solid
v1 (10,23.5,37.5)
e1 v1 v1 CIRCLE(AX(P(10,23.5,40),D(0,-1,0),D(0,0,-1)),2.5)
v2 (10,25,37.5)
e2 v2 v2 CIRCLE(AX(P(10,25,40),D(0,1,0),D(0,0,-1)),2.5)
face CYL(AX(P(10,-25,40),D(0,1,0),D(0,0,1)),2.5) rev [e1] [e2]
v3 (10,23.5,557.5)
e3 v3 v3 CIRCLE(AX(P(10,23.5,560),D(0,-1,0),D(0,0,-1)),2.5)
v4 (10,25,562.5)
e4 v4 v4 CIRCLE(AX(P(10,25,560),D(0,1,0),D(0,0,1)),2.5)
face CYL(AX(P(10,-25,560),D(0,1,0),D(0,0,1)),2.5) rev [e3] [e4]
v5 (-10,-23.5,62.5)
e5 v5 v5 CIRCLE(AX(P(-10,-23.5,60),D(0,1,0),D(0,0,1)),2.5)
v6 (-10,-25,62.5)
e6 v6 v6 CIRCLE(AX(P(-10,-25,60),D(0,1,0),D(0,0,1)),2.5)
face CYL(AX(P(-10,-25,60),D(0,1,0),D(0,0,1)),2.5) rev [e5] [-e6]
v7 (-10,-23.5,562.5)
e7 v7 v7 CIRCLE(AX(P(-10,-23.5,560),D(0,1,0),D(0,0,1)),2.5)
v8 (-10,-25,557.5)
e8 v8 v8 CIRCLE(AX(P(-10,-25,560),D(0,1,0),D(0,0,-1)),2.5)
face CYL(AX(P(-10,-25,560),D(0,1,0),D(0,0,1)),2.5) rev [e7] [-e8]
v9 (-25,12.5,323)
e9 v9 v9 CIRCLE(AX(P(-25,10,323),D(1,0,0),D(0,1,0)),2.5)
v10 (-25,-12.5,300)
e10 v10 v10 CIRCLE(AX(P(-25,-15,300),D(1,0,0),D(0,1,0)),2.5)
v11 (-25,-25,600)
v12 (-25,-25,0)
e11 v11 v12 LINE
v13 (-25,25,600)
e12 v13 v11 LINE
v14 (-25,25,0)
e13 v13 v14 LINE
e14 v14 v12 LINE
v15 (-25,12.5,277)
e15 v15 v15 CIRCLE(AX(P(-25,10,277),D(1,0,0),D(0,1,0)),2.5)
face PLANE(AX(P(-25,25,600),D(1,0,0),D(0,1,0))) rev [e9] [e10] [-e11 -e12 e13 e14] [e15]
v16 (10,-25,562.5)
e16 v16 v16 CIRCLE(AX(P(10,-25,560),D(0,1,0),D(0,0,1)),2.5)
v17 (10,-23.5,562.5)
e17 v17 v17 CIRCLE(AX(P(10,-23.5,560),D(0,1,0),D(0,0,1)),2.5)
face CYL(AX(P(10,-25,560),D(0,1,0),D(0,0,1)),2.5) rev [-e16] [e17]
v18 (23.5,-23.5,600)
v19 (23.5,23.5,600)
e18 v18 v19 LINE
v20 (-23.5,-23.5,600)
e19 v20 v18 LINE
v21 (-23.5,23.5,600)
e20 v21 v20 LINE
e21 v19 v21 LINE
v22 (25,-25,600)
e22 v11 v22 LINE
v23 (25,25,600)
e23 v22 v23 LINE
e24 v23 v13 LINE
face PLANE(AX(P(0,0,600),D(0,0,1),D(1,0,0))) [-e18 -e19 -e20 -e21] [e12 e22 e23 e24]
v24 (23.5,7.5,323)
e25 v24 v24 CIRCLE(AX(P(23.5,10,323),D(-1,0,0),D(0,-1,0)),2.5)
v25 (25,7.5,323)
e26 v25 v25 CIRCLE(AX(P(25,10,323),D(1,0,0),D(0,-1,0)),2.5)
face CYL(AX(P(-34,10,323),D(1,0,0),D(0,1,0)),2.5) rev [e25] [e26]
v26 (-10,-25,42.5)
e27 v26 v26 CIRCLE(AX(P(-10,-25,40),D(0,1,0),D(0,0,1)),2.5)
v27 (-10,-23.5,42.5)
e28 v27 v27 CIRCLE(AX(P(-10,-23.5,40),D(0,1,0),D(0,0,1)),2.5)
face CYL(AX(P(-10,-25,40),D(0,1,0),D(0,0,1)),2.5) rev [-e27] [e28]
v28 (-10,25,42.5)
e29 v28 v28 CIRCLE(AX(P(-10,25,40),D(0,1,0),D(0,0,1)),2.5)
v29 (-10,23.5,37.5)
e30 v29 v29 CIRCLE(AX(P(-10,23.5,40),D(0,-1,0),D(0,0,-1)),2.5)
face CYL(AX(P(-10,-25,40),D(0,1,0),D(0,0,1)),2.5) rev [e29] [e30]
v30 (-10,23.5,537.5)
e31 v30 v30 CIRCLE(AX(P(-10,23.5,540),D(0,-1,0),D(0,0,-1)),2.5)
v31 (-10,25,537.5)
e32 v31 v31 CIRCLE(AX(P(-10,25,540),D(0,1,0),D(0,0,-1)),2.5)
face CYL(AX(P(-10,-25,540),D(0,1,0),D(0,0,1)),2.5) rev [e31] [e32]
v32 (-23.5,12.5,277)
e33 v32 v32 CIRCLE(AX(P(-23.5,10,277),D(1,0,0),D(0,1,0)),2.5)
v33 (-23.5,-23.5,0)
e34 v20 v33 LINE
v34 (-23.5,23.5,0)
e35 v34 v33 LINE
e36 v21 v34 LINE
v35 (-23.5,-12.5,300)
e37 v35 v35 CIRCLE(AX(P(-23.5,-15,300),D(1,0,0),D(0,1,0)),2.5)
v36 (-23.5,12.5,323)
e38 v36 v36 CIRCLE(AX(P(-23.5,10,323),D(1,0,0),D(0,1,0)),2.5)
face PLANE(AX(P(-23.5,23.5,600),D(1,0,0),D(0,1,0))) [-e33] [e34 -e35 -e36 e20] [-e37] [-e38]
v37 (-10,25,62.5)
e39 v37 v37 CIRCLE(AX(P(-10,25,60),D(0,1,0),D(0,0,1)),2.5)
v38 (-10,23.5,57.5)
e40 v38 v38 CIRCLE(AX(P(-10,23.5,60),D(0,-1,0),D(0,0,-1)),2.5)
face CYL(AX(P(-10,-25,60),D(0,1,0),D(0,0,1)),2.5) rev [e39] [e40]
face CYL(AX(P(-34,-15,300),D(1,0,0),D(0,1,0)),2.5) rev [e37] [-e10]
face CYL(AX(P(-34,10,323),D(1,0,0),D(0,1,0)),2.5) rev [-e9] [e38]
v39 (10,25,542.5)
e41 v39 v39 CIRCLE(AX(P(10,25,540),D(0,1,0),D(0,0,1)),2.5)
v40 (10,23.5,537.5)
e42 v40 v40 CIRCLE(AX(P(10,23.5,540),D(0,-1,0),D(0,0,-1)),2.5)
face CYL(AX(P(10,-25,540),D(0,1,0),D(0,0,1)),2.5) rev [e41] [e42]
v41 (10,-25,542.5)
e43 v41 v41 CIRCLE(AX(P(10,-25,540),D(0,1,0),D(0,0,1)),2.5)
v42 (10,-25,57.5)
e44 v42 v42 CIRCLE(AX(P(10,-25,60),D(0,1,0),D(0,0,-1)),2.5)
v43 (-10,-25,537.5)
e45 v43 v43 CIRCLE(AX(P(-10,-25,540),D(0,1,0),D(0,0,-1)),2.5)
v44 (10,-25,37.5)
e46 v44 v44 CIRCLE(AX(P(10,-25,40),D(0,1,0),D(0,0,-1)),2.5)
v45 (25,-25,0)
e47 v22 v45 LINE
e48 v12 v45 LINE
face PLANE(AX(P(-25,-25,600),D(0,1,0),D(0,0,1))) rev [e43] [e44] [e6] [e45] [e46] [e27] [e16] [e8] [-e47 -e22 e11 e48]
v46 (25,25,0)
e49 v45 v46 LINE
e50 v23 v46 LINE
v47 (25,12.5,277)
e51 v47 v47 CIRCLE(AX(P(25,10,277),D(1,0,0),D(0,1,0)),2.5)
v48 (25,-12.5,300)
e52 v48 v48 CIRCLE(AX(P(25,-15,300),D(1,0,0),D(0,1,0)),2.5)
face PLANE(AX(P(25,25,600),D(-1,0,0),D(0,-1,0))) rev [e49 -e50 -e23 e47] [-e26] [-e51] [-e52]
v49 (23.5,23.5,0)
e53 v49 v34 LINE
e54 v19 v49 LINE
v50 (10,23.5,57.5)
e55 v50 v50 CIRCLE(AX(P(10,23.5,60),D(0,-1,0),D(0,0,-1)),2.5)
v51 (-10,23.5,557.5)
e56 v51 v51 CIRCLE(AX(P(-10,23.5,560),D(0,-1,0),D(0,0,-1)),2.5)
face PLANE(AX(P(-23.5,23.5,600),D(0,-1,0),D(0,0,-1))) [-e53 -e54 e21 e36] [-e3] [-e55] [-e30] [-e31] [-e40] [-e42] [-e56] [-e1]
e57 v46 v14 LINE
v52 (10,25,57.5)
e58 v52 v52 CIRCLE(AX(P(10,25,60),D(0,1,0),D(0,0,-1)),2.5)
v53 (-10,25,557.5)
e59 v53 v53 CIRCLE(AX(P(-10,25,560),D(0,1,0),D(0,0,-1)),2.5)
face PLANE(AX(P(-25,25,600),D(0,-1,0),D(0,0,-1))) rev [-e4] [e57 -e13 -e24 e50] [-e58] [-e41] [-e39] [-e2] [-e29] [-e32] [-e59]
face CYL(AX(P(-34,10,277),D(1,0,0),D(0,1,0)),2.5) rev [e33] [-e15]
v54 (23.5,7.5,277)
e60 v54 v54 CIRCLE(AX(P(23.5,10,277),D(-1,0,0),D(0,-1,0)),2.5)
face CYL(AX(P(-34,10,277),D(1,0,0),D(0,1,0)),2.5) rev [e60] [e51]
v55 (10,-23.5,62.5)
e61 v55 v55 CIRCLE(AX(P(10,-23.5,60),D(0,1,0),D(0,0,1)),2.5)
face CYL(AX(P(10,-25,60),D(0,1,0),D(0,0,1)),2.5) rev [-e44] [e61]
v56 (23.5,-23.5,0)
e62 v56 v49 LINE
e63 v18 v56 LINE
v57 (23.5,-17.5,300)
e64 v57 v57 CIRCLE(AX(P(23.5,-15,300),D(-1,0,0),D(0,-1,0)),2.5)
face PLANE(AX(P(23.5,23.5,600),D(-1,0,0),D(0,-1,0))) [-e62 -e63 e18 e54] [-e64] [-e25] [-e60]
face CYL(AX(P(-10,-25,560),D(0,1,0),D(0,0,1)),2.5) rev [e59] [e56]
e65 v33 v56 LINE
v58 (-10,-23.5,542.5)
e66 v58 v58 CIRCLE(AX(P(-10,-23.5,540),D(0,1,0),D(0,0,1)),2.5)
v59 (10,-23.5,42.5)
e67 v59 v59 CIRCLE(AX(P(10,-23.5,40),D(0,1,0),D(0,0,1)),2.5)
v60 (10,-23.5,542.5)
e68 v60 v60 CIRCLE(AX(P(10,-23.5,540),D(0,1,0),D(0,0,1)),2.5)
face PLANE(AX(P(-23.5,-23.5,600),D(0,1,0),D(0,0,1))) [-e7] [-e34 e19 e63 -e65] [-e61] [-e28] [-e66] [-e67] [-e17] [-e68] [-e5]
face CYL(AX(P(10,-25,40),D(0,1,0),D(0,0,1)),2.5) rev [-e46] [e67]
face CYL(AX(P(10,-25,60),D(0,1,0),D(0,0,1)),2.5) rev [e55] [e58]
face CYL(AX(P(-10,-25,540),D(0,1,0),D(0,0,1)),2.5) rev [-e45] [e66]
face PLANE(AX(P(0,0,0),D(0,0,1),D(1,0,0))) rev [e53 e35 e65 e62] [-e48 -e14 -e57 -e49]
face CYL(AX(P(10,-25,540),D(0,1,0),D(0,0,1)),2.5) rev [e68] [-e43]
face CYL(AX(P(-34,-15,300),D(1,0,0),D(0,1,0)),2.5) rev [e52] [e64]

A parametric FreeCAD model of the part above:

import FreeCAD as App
import Part
import Sketcher
from FreeCAD import Vector
Q = App.Units.Quantity


def add_polygon(sketch, points):
    """Adds a closed chain of lines whose ends are joined by coincident constraints."""
    first, n = sketch.GeometryCount, len(points)
    for a, b in zip(points, points[1:] + points[:1]):
        sketch.addGeometry(Part.LineSegment(App.Vector(*a, 0), App.Vector(*b, 0)), False)
    for i in range(n):
        sketch.addConstraint(Sketcher.Constraint("Coincident", first + i, 2, first + (i + 1) % n, 1))

doc = App.newDocument("Part")
body = doc.addObject("PartDesign::Body", "Body")

# Sketch on XY plane
sketch1 = body.newObject("Sketcher::SketchObject", "Sketch")
sketch1.AttachmentSupport = (doc.getObject("XY_Plane"), [""])
sketch1.MapMode = "FlatFace"
add_polygon(sketch1, [(-25, 25), (-25, -25), (25, -25), (25, 25)])  # lines 0-3
add_polygon(sketch1, [(24, -24), (-24, -24), (-24, 24), (24, 24)])  # lines 4-7
sketch1.addConstraint([
    Sketcher.Constraint("Vertical", 0),
    Sketcher.Constraint("Horizontal", 1),
    Sketcher.Constraint("Vertical", 2),
    Sketcher.Constraint("Horizontal", 3),
    Sketcher.Constraint("Horizontal", 4),
    Sketcher.Constraint("Vertical", 5),
    Sketcher.Constraint("Horizontal", 6),
    Sketcher.Constraint("Vertical", 7),
    Sketcher.Constraint("Symmetric", 0, 2, 2, 2, -1, 1),
    Sketcher.Constraint("Symmetric", 4, 2, 6, 2, -1, 1),
    Sketcher.Constraint("Equal", 3, 0),
    Sketcher.Constraint("Equal", 6, 5),
    Sketcher.Constraint("DistanceX", 1, 1, 1, 2, Q("50 mm")),
    Sketcher.Constraint("DistanceX", 4, 2, 4, 1, Q("47 mm")),
])
pad1 = body.newObject("PartDesign::Pad", "Pad")
pad1.Profile = sketch1
pad1.Length = 600

# Sketch on YZ plane
sketch2 = body.newObject("Sketcher::SketchObject", "Sketch001")
sketch2.AttachmentSupport = (doc.getObject("YZ_Plane"), [""])
sketch2.MapMode = "FlatFace"
sketch2.AttachmentOffset = App.Placement(Vector(0, 0, 25), App.Rotation())
sketch2.addGeometry([
    Part.Circle(Vector(-15, 300, 0), Vector(0, 0, 1), 2.5),
    Part.Circle(Vector(10, 277, 0), Vector(0, 0, 1), 2.5),
    Part.Circle(Vector(10, 323, 0), Vector(0, 0, 1), 2.5),
], False)
sketch2.addConstraint([
    Sketcher.Constraint("Equal", 0, 1),
    Sketcher.Constraint("Equal", 1, 2),
    Sketcher.Constraint("Vertical", 1, 3, 2, 3),
    Sketcher.Constraint("Diameter", 0, Q("5 mm")),
    Sketcher.Constraint("DistanceX", 0, 3, -1, 1, Q("15 mm")),
    Sketcher.Constraint("DistanceY", -1, 1, 0, 3, Q("300 mm")),
    Sketcher.Constraint("DistanceX", -1, 1, 1, 3, Q("10 mm")),
    Sketcher.Constraint("DistanceY", -1, 1, 1, 3, Q("277 mm")),
    Sketcher.Constraint("DistanceY", -1, 1, 2, 3, Q("323 mm")),
])
pocket1 = body.newObject("PartDesign::Pocket", "Pocket")
pocket1.Profile = sketch2
pocket1.Length = 59

# Sketch on XZ plane
sketch3 = body.newObject("Sketcher::SketchObject", "Sketch002")
sketch3.AttachmentSupport = (doc.getObject("XZ_Plane"), [""])
sketch3.MapMode = "FlatFace"
sketch3.AttachmentOffset = App.Placement(Vector(0, 0, -25), App.Rotation())
sketch3.addGeometry([
    Part.Circle(Vector(-10, 40, 0), Vector(0, 0, 1), 2.5),  # 0
    Part.Circle(Vector(10, 40, 0), Vector(0, 0, 1), 2.5),  # 1
    Part.Circle(Vector(-10, 60, 0), Vector(0, 0, 1), 2.5),  # 2
    Part.Circle(Vector(10, 60, 0), Vector(0, 0, 1), 2.5),  # 3
    Part.Circle(Vector(10, 540, 0), Vector(0, 0, 1), 2.5),  # 4
    Part.Circle(Vector(-10, 540, 0), Vector(0, 0, 1), 2.5),  # 5
    Part.Circle(Vector(10, 560, 0), Vector(0, 0, 1), 2.5),  # 6
    Part.Circle(Vector(-10, 560, 0), Vector(0, 0, 1), 2.5),  # 7
], False)
sketch3.addConstraint([
    Sketcher.Constraint("Equal", 0, 1),
    Sketcher.Constraint("Equal", 1, 2),
    Sketcher.Constraint("Equal", 2, 3),
    Sketcher.Constraint("Equal", 3, 4),
    Sketcher.Constraint("Equal", 4, 5),
    Sketcher.Constraint("Equal", 5, 6),
    Sketcher.Constraint("Equal", 6, 7),
    Sketcher.Constraint("Symmetric", 0, 3, 1, 3, -2),
    Sketcher.Constraint("Symmetric", 2, 3, 3, 3, -2),
    Sketcher.Constraint("Symmetric", 4, 3, 5, 3, -2),
    Sketcher.Constraint("Symmetric", 6, 3, 7, 3, -2),
    Sketcher.Constraint("Vertical", 0, 3, 2, 3),
    Sketcher.Constraint("Vertical", 3, 3, 4, 3),
    Sketcher.Constraint("Vertical", 4, 3, 6, 3),
    Sketcher.Constraint("Diameter", 0, Q("5 mm")),
    Sketcher.Constraint("DistanceX", 0, 3, -1, 1, Q("10 mm")),
    Sketcher.Constraint("DistanceY", -1, 1, 0, 3, Q("40 mm")),
    Sketcher.Constraint("DistanceY", -1, 1, 2, 3, Q("60 mm")),
    Sketcher.Constraint("DistanceY", -1, 1, 4, 3, Q("540 mm")),
    Sketcher.Constraint("DistanceY", -1, 1, 6, 3, Q("560 mm")),
])
pocket2 = body.newObject("PartDesign::Pocket", "Pocket001")
pocket2.Profile = sketch3
pocket2.Type = "ThroughAll"
pocket2.Reversed = True

doc.recompute()
